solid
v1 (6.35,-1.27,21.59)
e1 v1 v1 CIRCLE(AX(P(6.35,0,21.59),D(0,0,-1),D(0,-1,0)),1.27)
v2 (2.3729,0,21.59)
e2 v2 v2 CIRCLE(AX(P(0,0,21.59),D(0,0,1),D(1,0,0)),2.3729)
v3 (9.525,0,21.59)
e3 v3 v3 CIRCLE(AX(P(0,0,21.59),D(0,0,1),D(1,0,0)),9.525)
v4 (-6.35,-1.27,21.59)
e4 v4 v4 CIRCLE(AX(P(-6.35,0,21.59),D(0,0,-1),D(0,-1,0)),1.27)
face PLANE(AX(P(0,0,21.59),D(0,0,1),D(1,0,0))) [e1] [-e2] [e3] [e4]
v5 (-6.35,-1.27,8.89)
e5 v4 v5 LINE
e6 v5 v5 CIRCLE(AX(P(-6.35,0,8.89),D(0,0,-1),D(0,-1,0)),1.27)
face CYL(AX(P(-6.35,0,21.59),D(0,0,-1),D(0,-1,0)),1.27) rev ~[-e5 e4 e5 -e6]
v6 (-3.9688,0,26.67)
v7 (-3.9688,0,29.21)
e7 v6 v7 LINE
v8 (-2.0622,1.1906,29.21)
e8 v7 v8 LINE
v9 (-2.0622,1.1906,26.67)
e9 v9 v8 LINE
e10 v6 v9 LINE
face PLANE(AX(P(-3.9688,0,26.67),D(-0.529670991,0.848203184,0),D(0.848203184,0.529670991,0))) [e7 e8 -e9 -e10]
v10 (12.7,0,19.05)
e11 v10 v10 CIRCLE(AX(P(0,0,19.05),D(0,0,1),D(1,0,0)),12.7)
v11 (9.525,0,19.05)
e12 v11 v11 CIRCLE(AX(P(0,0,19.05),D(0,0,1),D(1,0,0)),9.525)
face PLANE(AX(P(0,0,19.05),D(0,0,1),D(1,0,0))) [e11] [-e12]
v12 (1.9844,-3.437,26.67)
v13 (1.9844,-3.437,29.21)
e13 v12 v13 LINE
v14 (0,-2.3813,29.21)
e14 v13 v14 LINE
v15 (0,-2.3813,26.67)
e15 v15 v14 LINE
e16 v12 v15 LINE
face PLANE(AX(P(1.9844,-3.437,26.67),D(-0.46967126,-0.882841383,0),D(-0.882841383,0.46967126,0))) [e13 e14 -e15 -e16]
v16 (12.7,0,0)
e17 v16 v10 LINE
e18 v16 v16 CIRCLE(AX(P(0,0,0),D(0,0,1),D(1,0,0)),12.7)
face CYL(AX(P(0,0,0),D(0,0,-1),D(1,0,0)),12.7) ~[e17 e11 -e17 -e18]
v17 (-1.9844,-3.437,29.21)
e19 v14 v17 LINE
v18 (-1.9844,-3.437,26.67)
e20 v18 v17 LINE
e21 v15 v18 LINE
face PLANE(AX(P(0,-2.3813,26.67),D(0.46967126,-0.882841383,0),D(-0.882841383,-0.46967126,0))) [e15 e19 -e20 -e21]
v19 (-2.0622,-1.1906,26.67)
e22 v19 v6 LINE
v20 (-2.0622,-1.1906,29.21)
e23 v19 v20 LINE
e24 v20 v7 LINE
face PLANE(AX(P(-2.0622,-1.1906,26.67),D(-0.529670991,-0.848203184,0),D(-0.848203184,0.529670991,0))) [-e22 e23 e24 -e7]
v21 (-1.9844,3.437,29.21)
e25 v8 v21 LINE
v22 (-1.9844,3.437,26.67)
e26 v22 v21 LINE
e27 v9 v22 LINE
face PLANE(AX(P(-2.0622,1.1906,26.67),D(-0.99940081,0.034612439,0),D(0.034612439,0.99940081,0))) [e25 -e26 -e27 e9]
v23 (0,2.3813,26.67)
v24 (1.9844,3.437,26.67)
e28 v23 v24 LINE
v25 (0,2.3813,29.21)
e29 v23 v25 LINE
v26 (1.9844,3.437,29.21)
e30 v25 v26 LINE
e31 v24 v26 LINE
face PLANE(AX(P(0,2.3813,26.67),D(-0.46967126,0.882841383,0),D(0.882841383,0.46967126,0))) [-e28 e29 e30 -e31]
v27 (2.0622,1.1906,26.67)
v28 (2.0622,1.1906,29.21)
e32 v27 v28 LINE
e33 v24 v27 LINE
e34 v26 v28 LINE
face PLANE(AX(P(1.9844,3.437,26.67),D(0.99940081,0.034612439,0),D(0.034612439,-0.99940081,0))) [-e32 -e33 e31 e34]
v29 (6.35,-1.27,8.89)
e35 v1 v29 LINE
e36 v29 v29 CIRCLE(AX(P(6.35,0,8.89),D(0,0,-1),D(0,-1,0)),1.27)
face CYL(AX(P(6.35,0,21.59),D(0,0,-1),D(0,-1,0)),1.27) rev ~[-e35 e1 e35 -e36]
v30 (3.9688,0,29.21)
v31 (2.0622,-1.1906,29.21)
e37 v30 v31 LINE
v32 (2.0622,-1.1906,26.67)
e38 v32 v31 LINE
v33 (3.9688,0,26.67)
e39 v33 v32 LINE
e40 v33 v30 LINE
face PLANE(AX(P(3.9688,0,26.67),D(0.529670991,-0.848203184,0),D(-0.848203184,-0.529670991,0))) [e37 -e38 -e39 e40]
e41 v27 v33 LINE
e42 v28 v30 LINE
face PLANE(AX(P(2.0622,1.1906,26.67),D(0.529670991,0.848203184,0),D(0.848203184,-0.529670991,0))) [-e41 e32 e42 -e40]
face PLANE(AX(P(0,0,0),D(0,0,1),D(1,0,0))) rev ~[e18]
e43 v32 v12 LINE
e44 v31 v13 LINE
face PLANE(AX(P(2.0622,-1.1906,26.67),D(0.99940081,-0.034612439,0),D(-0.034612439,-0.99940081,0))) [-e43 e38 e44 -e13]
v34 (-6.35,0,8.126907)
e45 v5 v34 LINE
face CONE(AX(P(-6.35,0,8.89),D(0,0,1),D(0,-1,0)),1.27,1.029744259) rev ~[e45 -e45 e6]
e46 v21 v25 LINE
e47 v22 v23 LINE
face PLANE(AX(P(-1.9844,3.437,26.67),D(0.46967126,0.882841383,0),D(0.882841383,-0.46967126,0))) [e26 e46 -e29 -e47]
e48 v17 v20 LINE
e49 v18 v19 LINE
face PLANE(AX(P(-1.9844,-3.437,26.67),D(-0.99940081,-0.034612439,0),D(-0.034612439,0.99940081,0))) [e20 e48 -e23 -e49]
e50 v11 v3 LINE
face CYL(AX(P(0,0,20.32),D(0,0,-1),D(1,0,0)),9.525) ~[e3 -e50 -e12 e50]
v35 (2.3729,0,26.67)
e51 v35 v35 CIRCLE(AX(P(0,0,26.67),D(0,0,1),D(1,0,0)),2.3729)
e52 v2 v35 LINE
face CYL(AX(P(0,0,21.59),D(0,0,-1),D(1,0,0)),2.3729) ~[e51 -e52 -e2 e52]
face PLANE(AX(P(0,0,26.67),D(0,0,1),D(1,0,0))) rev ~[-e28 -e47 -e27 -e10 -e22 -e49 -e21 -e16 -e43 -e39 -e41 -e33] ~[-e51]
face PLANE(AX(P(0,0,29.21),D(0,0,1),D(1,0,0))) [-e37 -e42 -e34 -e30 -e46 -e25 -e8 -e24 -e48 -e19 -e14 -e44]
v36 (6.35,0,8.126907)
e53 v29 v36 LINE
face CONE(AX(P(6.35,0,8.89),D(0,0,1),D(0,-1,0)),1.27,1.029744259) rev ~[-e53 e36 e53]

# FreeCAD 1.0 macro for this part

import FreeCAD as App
import Part
import Sketcher
from FreeCAD import Vector
Q = App.Units.Quantity


def add_polygon(sketch, points):
    """Adds a closed chain of lines whose ends are joined by coincident constraints."""
    first, n = sketch.GeometryCount, len(points)
    for a, b in zip(points, points[1:] + points[:1]):
        sketch.addGeometry(Part.LineSegment(App.Vector(*a, 0), App.Vector(*b, 0)), False)
    for i in range(n):
        sketch.addConstraint(Sketcher.Constraint("Coincident", first + i, 2, first + (i + 1) % n, 1))

doc = App.newDocument("Part")
params = doc.addObject("Spreadsheet::Sheet", "Params")
for row, (alias, value) in enumerate([
    ("sketch1_diameter", "1 in"),
    ("pad1_length", "0.75 in"),
    ("sketch2_diameter", "0.75 in"),
    ("pad2_length", "0.05 in"),
    ("sketch3_diameter", "0.75 in"),
    ("pad3_length", "0.05 in"),
    ("pad4_length", "0.2 in"),
    ("pad5_length", "0.1 in"),
    ("sketch6_diameter", "0.1 in"),
    ("hole_diameter", "0.1 in"),
    ("hole_depth", "0.5 in"),
], start=1):
    params.set(f"A{row}", alias)
    params.set(f"B{row}", "=" + value)
    params.setAlias(f"B{row}", alias)

body = doc.addObject("PartDesign::Body", "Body")

# Sketch on XY plane
sketch1 = doc.addObject("Sketcher::SketchObject", "Sketch")
body.addObject(sketch1)
sketch1.AttachmentSupport = (doc.XY_Plane, [""])
sketch1.MapMode = "FlatFace"
sketch1.addGeometry(Part.Circle(Vector(0, 0, 0), Vector(0, 0, 1), 13), False)
sketch1.addConstraint(Sketcher.Constraint("Coincident", 0, 3, -1, 1))
sketch1.addConstraint(Sketcher.Constraint("Diameter", 0, Q("1 in")))
sketch1.setExpression("Constraints[1]", "Params.sketch1_diameter")
pad1 = doc.addObject("PartDesign::Pad", "Pad")
body.addObject(pad1)
pad1.Profile = sketch1
pad1.setExpression("Length", "Params.pad1_length")

# Sketch on XY plane
sketch2 = doc.addObject("Sketcher::SketchObject", "Sketch001")
body.addObject(sketch2)
sketch2.AttachmentSupport = (doc.XY_Plane, [""])
sketch2.MapMode = "FlatFace"
sketch2.AttachmentOffset = App.Placement(Vector(0, 0, 0.75 * 25.4), App.Rotation())
sketch2.addGeometry(Part.Circle(Vector(0, 0, 0), Vector(0, 0, 1), 10), False)
sketch2.addConstraint(Sketcher.Constraint("Coincident", 0, 3, -1, 1))
sketch2.addConstraint(Sketcher.Constraint("Diameter", 0, Q("0.75 in")))
sketch2.setExpression("Constraints[1]", "Params.sketch2_diameter")
pad2 = doc.addObject("PartDesign::Pad", "Pad001")
body.addObject(pad2)
pad2.Profile = sketch2
pad2.setExpression("Length", "Params.pad2_length")

# Sketch on XY plane
sketch3 = doc.addObject("Sketcher::SketchObject", "Sketch002")
body.addObject(sketch3)
sketch3.AttachmentSupport = (doc.XY_Plane, [""])
sketch3.MapMode = "FlatFace"
sketch3.AttachmentOffset = App.Placement(Vector(0, 0, 0.8 * 25.4), App.Rotation())
sketch3.addGeometry(Part.Circle(Vector(0, 0, 0), Vector(0, 0, 1), 10), False)
sketch3.addConstraint(Sketcher.Constraint("Coincident", 0, 3, -1, 1))
sketch3.addConstraint(Sketcher.Constraint("Diameter", 0, Q("0.75 in")))
sketch3.setExpression("Constraints[1]", "Params.sketch3_diameter")
pad3 = doc.addObject("PartDesign::Pad", "Pad002")
body.addObject(pad3)
pad3.Profile = sketch3
pad3.setExpression("Length", "Params.pad3_length")

# Sketch on XY plane
sketch4 = doc.addObject("Sketcher::SketchObject", "Sketch003")
body.addObject(sketch4)
sketch4.AttachmentSupport = (doc.XY_Plane, [""])
sketch4.MapMode = "FlatFace"
sketch4.AttachmentOffset = App.Placement(Vector(0, 0, 0.85 * 25.4), App.Rotation())
sketch4.addGeometry(Part.Circle(Vector(0, 0, 0), Vector(0, 0, 1), 2.4), False)
sketch4.addConstraint(Sketcher.Constraint("Coincident", 0, 3, -1, 1))
sketch4.addConstraint(Sketcher.Constraint("Diameter", 0, Q("4.7458 mm")))
pad4 = doc.addObject("PartDesign::Pad", "Pad003")
body.addObject(pad4)
pad4.Profile = sketch4
pad4.setExpression("Length", "Params.pad4_length")

# Sketch on XY plane
sketch5 = doc.addObject("Sketcher::SketchObject", "Sketch004")
body.addObject(sketch5)
sketch5.AttachmentSupport = (doc.XY_Plane, [""])
sketch5.MapMode = "FlatFace"
sketch5.AttachmentOffset = App.Placement(Vector(0, 0, 1.05 * 25.4), App.Rotation())
add_polygon(sketch5, [(-2, 3.4), (-2.1, 1.2), (-4, 0), (-2.1, -1.2), (-2, -3.4), (0, -2.4), (2, -3.4), (2.1, -1.2), (4, 0), (2.1, 1.2), (2, 3.4), (0, 2.4)])  # lines 0-11
sketch5.addConstraint(Sketcher.Constraint("Symmetric", 0, 2, 6, 2, -1, 1))
sketch5.addConstraint(Sketcher.Constraint("Symmetric", 1, 2, 7, 2, -1, 1))
sketch5.addConstraint(Sketcher.Constraint("Symmetric", 2, 2, 8, 2, -1, 1))
sketch5.addConstraint(Sketcher.Constraint("Symmetric", 3, 2, 9, 2, -1, 1))
sketch5.addConstraint(Sketcher.Constraint("Symmetric", 4, 2, 10, 2, -1, 1))
sketch5.addConstraint(Sketcher.Constraint("Symmetric", 5, 2, 11, 2, -1, 1))
sketch5.addConstraint(Sketcher.Constraint("Symmetric", 3, 2, 5, 2, -2))
sketch5.addConstraint(Sketcher.Constraint("Symmetric", 2, 2, 6, 2, -2))
sketch5.addConstraint(Sketcher.Constraint("PointOnObject", 1, 2, -1))
sketch5.addConstraint(Sketcher.Constraint("PointOnObject", 4, 2, -2))
sketch5.addConstraint(Sketcher.Constraint("Equal", 0, 1))
sketch5.addConstraint(Sketcher.Constraint("Equal", 3, 4))
sketch5.addConstraint(Sketcher.Constraint("DistanceY", -1, 1, 0, 2, Q("0.046874 in")))
sketch5.addConstraint(Sketcher.Constraint("DistanceX", 1, 2, -1, 1, Q("0.156252 in")))
sketch5.addConstraint(Sketcher.Constraint("DistanceX", 3, 2, -1, 1, Q("0.078126 in")))
sketch5.addConstraint(Sketcher.Constraint("DistanceY", 4, 2, -1, 1, Q("0.093752 in")))
pad5 = doc.addObject("PartDesign::Pad", "Pad004")
body.addObject(pad5)
pad5.Profile = sketch5
pad5.setExpression("Length", "Params.pad5_length")

# Sketch on XY plane
sketch6 = doc.addObject("Sketcher::SketchObject", "Sketch005")
body.addObject(sketch6)
sketch6.AttachmentSupport = (doc.XY_Plane, [""])
sketch6.MapMode = "FlatFace"
sketch6.AttachmentOffset = App.Placement(Vector(0, 0, 0.85 * 25.4), App.Rotation())
sketch6.addGeometry(Part.Circle(Vector(-6.3, 0, 0), Vector(0, 0, 1), 1.3), False)
sketch6.addGeometry(Part.Circle(Vector(6.3, 0, 0), Vector(0, 0, 1), 1.3), False)
sketch6.addConstraint(Sketcher.Constraint("Equal", 0, 1))
sketch6.addConstraint(Sketcher.Constraint("Symmetric", 0, 3, 1, 3, -1, 1))
sketch6.addConstraint(Sketcher.Constraint("PointOnObject", 0, 3, -1))
sketch6.addConstraint(Sketcher.Constraint("Diameter", 0, Q("0.1 in")))
sketch6.addConstraint(Sketcher.Constraint("DistanceX", 0, 3, 1, 3, Q("0.5 in")))
sketch6.setExpression("Constraints[3]", "Params.sketch6_diameter")
doc.recompute()
hole = doc.addObject("PartDesign::Hole", "Hole")
body.addObject(hole)
hole.Profile = sketch6
hole.ThreadType = "None"
hole.setExpression("Diameter", "Params.hole_diameter")
hole.DepthType = "Dimension"
hole.setExpression("Depth", "Params.hole_depth")
hole.DrillPoint = "Angled"
hole.DrillPointAngle = 118

doc.recompute()
